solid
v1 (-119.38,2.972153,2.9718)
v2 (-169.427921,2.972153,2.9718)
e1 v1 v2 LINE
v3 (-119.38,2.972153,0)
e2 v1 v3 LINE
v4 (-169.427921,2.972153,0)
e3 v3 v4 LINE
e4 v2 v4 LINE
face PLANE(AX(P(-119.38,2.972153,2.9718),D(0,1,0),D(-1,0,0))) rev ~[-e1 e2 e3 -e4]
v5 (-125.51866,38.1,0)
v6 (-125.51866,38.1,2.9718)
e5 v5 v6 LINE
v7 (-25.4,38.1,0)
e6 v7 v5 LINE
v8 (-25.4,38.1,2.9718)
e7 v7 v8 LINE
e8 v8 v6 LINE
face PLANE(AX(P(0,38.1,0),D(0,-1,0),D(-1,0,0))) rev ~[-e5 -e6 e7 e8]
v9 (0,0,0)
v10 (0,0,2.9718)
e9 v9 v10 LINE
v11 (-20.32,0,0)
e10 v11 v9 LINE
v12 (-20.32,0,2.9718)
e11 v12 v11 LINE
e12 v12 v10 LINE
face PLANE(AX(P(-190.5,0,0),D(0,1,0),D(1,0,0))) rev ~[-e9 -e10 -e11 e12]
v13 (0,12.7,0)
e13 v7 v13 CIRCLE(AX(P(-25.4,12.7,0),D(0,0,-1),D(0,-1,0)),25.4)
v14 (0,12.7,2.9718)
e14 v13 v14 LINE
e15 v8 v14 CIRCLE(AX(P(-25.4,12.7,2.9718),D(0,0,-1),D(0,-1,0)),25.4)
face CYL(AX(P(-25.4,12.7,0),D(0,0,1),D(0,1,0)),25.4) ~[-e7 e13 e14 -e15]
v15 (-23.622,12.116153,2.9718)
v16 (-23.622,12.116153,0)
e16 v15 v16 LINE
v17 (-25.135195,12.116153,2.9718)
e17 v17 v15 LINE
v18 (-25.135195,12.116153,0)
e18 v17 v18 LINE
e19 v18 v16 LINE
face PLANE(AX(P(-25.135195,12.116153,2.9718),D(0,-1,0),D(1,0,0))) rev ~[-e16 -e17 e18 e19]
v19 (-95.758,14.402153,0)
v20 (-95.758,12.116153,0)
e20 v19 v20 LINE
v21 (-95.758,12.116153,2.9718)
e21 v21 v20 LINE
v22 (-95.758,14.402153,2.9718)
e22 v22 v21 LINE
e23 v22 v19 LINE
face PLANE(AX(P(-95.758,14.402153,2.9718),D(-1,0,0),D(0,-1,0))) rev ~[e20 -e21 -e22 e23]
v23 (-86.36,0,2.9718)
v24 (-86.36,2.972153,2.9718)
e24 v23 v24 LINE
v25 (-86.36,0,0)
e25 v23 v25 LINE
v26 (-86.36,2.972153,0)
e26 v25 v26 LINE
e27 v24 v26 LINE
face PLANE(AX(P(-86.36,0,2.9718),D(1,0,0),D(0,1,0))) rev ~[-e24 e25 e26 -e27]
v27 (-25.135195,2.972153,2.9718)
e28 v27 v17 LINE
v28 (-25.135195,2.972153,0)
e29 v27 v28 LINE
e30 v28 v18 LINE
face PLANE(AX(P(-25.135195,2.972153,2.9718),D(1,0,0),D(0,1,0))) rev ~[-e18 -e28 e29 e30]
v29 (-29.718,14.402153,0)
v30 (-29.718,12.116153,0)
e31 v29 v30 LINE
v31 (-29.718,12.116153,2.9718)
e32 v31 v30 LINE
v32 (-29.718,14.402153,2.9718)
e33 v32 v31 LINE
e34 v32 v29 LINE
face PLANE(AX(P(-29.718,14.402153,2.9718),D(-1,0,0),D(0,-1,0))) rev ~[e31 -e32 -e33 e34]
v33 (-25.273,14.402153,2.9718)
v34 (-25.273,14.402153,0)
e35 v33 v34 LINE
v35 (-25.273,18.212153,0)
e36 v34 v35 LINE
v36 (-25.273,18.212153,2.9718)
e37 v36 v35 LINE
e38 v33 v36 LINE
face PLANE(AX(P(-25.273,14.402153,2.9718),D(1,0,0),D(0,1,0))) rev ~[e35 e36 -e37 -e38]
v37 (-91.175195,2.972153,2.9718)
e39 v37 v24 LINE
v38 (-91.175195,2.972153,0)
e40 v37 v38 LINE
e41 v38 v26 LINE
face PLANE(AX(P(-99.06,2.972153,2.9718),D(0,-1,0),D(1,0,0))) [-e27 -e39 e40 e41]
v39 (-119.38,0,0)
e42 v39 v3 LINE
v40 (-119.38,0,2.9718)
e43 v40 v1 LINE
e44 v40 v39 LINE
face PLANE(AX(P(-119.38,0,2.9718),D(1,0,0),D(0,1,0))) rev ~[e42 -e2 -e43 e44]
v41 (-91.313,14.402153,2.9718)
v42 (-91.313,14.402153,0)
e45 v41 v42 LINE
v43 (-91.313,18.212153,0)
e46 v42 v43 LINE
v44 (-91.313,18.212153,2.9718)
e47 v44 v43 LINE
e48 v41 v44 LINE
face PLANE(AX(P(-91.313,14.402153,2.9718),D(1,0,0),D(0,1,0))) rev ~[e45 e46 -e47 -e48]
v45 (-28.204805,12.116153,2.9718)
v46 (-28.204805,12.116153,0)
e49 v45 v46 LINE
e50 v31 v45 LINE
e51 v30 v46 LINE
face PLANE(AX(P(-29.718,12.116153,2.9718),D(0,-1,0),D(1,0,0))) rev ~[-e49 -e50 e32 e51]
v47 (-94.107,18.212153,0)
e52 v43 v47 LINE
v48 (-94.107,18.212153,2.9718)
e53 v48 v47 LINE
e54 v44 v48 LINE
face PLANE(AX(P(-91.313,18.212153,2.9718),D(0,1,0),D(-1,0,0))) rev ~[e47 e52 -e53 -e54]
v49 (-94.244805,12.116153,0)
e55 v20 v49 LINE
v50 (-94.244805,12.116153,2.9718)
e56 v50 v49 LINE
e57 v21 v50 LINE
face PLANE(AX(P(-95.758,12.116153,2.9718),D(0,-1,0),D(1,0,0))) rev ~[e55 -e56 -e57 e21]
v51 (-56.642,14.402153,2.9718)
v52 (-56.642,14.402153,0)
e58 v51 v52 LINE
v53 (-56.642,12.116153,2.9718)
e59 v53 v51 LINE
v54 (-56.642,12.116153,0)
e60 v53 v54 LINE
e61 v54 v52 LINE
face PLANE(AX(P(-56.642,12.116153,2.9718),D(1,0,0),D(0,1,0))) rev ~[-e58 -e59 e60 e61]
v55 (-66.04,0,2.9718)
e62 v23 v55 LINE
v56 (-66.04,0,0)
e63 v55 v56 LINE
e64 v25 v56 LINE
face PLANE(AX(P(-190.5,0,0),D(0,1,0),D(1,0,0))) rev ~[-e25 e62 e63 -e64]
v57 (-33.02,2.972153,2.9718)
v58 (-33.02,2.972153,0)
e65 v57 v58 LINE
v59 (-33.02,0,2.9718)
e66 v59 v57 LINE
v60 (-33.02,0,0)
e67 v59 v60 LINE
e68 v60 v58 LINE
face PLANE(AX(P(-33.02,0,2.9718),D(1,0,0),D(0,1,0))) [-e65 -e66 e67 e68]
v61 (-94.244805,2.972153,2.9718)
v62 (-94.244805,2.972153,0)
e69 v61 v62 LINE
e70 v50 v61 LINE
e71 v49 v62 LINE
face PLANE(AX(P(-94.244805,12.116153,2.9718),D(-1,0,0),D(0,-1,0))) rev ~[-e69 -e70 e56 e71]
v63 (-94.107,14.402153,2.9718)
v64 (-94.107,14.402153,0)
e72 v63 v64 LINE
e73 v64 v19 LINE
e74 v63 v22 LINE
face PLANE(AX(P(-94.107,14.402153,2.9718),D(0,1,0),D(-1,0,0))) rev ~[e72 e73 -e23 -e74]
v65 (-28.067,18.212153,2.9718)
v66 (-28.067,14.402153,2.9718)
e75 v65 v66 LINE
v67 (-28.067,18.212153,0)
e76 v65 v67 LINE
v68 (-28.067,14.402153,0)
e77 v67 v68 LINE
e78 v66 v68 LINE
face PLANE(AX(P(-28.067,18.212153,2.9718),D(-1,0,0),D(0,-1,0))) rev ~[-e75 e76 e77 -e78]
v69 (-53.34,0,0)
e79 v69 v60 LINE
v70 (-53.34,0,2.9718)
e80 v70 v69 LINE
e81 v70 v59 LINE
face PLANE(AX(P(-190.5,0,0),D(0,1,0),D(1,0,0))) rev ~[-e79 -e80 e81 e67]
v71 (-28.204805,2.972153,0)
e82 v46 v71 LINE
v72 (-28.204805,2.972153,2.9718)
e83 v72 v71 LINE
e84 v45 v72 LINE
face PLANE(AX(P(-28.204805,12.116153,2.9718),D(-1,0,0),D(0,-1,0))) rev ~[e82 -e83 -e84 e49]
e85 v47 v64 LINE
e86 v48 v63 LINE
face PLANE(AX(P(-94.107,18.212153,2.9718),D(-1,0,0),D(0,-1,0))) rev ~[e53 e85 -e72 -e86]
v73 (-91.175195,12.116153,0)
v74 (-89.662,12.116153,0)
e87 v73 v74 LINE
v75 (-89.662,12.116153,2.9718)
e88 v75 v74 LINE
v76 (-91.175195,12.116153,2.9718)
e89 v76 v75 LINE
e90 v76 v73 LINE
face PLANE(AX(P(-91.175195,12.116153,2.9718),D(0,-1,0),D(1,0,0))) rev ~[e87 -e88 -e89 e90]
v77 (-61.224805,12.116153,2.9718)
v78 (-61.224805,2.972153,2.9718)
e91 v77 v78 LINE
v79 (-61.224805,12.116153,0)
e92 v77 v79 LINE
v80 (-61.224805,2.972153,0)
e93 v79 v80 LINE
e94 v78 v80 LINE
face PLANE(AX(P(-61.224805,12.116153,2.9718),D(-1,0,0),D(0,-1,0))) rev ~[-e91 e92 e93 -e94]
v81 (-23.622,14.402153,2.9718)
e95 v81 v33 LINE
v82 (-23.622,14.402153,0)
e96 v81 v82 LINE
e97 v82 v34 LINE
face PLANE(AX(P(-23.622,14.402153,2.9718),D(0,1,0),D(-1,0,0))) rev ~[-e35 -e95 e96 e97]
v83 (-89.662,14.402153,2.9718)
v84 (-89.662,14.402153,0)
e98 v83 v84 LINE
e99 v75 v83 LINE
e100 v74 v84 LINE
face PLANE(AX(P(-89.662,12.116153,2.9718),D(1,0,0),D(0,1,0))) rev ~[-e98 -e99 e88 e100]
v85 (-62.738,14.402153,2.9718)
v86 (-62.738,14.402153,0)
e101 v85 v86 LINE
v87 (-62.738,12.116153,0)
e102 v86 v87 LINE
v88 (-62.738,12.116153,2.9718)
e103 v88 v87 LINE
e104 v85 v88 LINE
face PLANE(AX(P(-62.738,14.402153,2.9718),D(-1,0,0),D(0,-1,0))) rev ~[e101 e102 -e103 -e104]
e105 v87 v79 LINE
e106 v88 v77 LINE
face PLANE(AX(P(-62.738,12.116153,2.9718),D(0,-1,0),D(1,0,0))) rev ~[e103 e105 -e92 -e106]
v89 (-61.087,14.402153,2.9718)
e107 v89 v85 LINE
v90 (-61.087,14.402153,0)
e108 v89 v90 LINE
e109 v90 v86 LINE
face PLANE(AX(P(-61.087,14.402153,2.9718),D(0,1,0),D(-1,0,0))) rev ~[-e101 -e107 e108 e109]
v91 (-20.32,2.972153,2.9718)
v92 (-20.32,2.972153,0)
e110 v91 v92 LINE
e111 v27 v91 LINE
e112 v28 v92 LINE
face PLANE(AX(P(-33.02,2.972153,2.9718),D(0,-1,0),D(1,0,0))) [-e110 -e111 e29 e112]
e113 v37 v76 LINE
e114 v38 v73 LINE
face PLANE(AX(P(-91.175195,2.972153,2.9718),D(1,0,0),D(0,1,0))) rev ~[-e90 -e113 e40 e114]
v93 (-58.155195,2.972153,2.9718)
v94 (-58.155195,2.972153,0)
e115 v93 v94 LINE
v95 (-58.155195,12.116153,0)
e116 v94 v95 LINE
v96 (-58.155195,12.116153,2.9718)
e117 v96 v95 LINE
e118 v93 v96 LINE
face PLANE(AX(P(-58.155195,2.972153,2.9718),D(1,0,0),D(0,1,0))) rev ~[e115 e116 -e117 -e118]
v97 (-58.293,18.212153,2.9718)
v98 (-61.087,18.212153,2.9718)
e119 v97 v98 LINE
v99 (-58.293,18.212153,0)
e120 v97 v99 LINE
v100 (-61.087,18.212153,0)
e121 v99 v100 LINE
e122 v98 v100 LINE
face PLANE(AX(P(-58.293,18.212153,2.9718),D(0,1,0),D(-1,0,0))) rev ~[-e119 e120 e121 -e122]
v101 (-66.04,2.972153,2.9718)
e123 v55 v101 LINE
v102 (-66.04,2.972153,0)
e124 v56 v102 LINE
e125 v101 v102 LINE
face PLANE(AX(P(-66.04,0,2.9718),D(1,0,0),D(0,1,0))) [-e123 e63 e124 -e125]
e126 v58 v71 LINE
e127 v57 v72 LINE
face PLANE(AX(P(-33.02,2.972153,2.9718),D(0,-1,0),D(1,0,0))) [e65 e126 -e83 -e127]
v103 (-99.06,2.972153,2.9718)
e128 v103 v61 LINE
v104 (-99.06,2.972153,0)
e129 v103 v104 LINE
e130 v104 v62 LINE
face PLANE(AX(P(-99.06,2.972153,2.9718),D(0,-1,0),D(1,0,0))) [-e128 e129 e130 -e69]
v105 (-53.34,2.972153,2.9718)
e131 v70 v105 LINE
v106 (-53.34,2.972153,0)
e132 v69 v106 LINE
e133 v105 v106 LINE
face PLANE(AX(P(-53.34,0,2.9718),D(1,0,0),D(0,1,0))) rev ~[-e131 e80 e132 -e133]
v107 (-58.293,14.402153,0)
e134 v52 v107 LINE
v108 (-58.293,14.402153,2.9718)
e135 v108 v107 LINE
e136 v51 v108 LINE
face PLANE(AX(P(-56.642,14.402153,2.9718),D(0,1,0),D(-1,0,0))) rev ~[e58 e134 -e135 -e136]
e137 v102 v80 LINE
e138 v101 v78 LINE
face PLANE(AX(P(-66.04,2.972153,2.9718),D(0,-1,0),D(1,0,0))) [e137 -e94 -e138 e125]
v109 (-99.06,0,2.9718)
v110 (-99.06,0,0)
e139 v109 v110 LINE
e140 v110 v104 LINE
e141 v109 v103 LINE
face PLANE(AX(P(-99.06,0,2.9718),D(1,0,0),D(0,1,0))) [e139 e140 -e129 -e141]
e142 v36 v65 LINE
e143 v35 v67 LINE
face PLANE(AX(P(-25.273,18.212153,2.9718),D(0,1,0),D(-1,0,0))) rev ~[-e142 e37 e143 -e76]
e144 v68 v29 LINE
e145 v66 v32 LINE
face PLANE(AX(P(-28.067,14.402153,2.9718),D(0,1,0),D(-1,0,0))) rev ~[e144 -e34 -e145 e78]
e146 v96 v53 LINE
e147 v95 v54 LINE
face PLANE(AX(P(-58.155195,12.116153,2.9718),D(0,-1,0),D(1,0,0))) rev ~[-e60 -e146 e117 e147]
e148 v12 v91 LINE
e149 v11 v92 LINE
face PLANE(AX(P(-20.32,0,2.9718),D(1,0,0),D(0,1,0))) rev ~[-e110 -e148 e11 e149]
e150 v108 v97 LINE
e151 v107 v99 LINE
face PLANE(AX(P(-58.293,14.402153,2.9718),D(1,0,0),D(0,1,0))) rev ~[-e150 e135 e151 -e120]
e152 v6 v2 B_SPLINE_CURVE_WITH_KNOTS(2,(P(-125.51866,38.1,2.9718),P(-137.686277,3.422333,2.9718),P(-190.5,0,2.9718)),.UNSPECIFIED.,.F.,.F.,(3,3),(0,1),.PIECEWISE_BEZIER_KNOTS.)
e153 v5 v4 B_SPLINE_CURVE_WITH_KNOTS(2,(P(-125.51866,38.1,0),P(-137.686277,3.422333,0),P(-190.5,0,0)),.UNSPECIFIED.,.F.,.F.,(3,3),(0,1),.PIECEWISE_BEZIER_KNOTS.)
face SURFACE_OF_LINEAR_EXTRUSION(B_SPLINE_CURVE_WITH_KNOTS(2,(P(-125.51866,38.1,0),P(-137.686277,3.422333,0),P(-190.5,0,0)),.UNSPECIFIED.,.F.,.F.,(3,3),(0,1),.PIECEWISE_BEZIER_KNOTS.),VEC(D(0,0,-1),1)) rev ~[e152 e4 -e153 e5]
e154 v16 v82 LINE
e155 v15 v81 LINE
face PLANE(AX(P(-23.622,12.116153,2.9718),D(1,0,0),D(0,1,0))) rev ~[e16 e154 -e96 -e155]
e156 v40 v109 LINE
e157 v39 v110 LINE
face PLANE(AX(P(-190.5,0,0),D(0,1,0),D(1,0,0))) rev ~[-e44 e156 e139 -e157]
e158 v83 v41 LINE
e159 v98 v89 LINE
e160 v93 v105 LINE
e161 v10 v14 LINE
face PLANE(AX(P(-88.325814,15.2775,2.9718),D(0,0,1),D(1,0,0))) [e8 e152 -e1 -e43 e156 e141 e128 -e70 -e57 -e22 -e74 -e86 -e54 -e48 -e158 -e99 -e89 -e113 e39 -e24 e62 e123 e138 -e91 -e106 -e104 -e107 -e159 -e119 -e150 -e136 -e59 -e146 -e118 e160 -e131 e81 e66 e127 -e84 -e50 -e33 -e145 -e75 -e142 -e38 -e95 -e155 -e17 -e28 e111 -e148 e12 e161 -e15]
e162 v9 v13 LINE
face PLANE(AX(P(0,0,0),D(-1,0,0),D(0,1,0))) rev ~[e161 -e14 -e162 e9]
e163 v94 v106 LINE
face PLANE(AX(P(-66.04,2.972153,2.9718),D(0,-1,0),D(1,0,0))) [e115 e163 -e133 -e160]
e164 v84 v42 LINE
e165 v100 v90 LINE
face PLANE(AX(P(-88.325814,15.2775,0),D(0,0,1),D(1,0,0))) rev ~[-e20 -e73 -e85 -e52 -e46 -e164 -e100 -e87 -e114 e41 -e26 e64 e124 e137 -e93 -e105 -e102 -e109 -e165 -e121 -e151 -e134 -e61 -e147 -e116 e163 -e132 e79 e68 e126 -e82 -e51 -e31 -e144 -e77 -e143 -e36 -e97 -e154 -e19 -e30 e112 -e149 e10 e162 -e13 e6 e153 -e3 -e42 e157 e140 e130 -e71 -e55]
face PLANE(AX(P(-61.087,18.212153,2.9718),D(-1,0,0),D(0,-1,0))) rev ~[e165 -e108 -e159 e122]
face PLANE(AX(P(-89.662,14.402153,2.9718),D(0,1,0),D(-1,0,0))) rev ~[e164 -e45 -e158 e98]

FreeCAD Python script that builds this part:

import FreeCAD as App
import Part
import Sketcher

V = App.Vector
Q = App.Units.Quantity


def edges_at(feature, points):
    """Names of the edges that pass closest to the given points."""
    edges = feature.Shape.Edges
    near = lambda p: min(range(len(edges)), key=lambda i: edges[i].distToShape(Part.Vertex(*p))[0])
    return sorted({f"Edge{near(p) + 1}" for p in points})


def add_polygon(sketch, points):
    """Adds a closed chain of lines whose ends are joined by coincident constraints."""
    first, n = sketch.GeometryCount, len(points)
    for a, b in zip(points, points[1:] + points[:1]):
        sketch.addGeometry(Part.LineSegment(App.Vector(*a, 0), App.Vector(*b, 0)), False)
    for i in range(n):
        sketch.addConstraint(Sketcher.Constraint("Coincident", first + i, 2, first + (i + 1) % n, 1))

doc = App.newDocument("Part")
params = doc.addObject("Spreadsheet::Sheet", "Params")
for row, (alias, value) in enumerate([
    ("pad1_length", "0.117 in"),
    ("sketch2_width", "0.5 in"),
    ("sketch2_width2", "2.8 in"),
    ("pocket1_length", "0.117 in"),
    ("sketch3_width", "0.11 in"),
    ("sketch3_height", "0.15 in"),
    ("sketch3_height2", "0.09 in"),
    ("sketch3_height3", "0.36 in"),
    ("sketch3_width2", "0.065 in"),
    ("pocket2_length", "0.117 in"),
    ("fillet_radius", "1 in"),
], start=1):
    params.set(f"A{row}", alias)
    params.set(f"B{row}", "=" + value)
    params.setAlias(f"B{row}", alias)

body = doc.addObject("PartDesign::Body", "Body")

# Sketch on XY plane
sketch1 = doc.addObject("Sketcher::SketchObject", "Sketch")
body.addObject(sketch1)
sketch1.AttachmentSupport = (doc.XY_Plane, [""])
sketch1.MapMode = "FlatFace"
sketch1.addGeometry([
    Part.LineSegment(V(-190.5, 0, 0), V(0, 0, 0)),
    Part.LineSegment(V(0, 0, 0), V(0, 38.1, 0)),
    Part.LineSegment(V(0, 38.1, 0), V(-125.51866, 38.1, 0)),
    Part.BSplineCurve([V(-125.51866, 38.1, 0), V(-137.686277, 3.422333, 0), V(-190.5, 0, 0)], [3, 3], [0, 1], False, 2, [1, 1, 1], False),
], False)
sketch1.addConstraint([
    Sketcher.Constraint("Block", 3),
    Sketcher.Constraint("Coincident", 0, 2, 1, 1),
    Sketcher.Constraint("Coincident", 1, 2, 2, 1),
    Sketcher.Constraint("Coincident", 2, 2, 3, 1),
    Sketcher.Constraint("Coincident", 3, 2, 0, 1),
    Sketcher.Constraint("Horizontal", 0),
    Sketcher.Constraint("Vertical", 1),
    Sketcher.Constraint("Horizontal", 2),
    Sketcher.Constraint("PointOnObject", 1, 2, -2),
])
pad1 = doc.addObject("PartDesign::Pad", "Pad")
body.addObject(pad1)
pad1.Profile = sketch1
pad1.setExpression("Length", "Params.pad1_length")

# Sketch on XY plane
sketch2 = doc.addObject("Sketcher::SketchObject", "Sketch001")
body.addObject(sketch2)
sketch2.AttachmentSupport = (doc.XY_Plane, [""])
sketch2.MapMode = "FlatFace"
sketch2.AttachmentOffset = App.Placement(V(0, 0, 0.117 * 25.4), App.Rotation())
add_polygon(sketch2, [(-33.02, 2.972153), (-33.02, 0), (-20.32, 0), (-20.32, 2.972153)])  # lines 0-3
add_polygon(sketch2, [(-66.04, 2.972153), (-66.04, 0), (-53.34, 0), (-53.34, 2.972153)])  # lines 4-7
add_polygon(sketch2, [(-99.06, 2.972153), (-99.06, 0), (-86.36, 0), (-86.36, 2.972153)])  # lines 8-11
sketch2.addGeometry(Part.BSplineCurve([V(-169.427921, 2.972153, 0), V(-179.000448, 0.745172, 0), V(-190.5, 0, 0)], [3, 3], [0.782262052, 1], False, 2, [1, 1, 1], False), False)  # 12
sketch2.addGeometry(Part.LineSegment(V(-190.5, 0, 0), V(-119.38, 0, 0)), False)  # 13
sketch2.addGeometry(Part.LineSegment(V(-119.38, 0, 0), V(-119.38, 2.972153, 0)), False)  # 14
sketch2.addGeometry(Part.LineSegment(V(-119.38, 2.972153, 0), V(-169.427921, 2.972153, 0)), False)  # 15
sketch2.addConstraint([
    Sketcher.Constraint("Block", 12),
    Sketcher.Constraint("Coincident", 12, 2, 13, 1),
    Sketcher.Constraint("Coincident", 13, 2, 14, 1),
    Sketcher.Constraint("Coincident", 14, 2, 15, 1),
    Sketcher.Constraint("Coincident", 15, 2, 12, 1),
    Sketcher.Constraint("Vertical", 0),
    Sketcher.Constraint("Horizontal", 1),
    Sketcher.Constraint("Vertical", 2),
    Sketcher.Constraint("Horizontal", 3),
    Sketcher.Constraint("Vertical", 4),
    Sketcher.Constraint("Horizontal", 5),
    Sketcher.Constraint("Vertical", 6),
    Sketcher.Constraint("Horizontal", 7),
    Sketcher.Constraint("Vertical", 8),
    Sketcher.Constraint("Horizontal", 9),
    Sketcher.Constraint("Vertical", 10),
    Sketcher.Constraint("Horizontal", 11),
    Sketcher.Constraint("Horizontal", 13),
    Sketcher.Constraint("Vertical", 14),
    Sketcher.Constraint("Horizontal", 15),
    Sketcher.Constraint("PointOnObject", 0, 2, -1),
    Sketcher.Constraint("PointOnObject", 4, 2, -1),
    Sketcher.Constraint("PointOnObject", 8, 2, -1),
    Sketcher.Constraint("Horizontal", 3, 2, 6, 2),
    Sketcher.Constraint("Horizontal", 7, 2, 10, 2),
    Sketcher.Constraint("Horizontal", 11, 2, 14, 2),
    Sketcher.Constraint("Equal", 3, 5),
    Sketcher.Constraint("Equal", 7, 9),
    Sketcher.Constraint("DistanceX", 1, 1, 1, 2, Q("0.5 in")),
    Sketcher.Constraint("DistanceX", 13, 1, 13, 2, Q("2.8 in")),
    Sketcher.Constraint("DistanceX", 0, 2, -1, 1, Q("1.3 in")),
    Sketcher.Constraint("DistanceX", 4, 2, -1, 1, Q("2.6 in")),
    Sketcher.Constraint("DistanceX", 8, 2, -1, 1, Q("3.9 in")),
])
sketch2.setExpression("Constraints[40]", "Params.sketch2_width")
sketch2.setExpression("Constraints[41]", "Params.sketch2_width2")
pocket1 = doc.addObject("PartDesign::Pocket", "Pocket")
body.addObject(pocket1)
pocket1.Profile = sketch2
pocket1.setExpression("Length", "Params.pocket1_length")

# Sketch on XY plane
sketch3 = doc.addObject("Sketcher::SketchObject", "Sketch002")
body.addObject(sketch3)
sketch3.AttachmentSupport = (doc.XY_Plane, [""])
sketch3.MapMode = "FlatFace"
sketch3.AttachmentOffset = App.Placement(V(0, 0, 0.117 * 25.4), App.Rotation())
add_polygon(sketch3, [(-91.313, 14.402153), (-91.313, 18.212153), (-94.107, 18.212153), (-94.107, 14.402153), (-95.758, 14.402153), (-95.758, 12.116153), (-94.244805, 12.116153), (-94.244805, 2.972153), (-91.175195, 2.972153), (-91.175195, 12.116153), (-89.662, 12.116153), (-89.662, 14.402153)])  # lines 0-11
add_polygon(sketch3, [(-58.293, 14.402153), (-58.293, 18.212153), (-61.087, 18.212153), (-61.087, 14.402153), (-62.738, 14.402153), (-62.738, 12.116153), (-61.224805, 12.116153), (-61.224805, 2.972153), (-58.155195, 2.972153), (-58.155195, 12.116153), (-56.642, 12.116153), (-56.642, 14.402153)])  # lines 12-23
add_polygon(sketch3, [(-28.067, 18.212153), (-28.067, 14.402153), (-29.718, 14.402153), (-29.718, 12.116153), (-28.204805, 12.116153), (-28.204805, 2.972153), (-25.135195, 2.972153), (-25.135195, 12.116153), (-23.622, 12.116153), (-23.622, 14.402153), (-25.273, 14.402153), (-25.273, 18.212153)])  # lines 24-35
sketch3.addConstraint([
    Sketcher.Constraint("Vertical", 0),
    Sketcher.Constraint("Horizontal", 1),
    Sketcher.Constraint("Vertical", 2),
    Sketcher.Constraint("Horizontal", 3),
    Sketcher.Constraint("Vertical", 4),
    Sketcher.Constraint("Horizontal", 5),
    Sketcher.Constraint("Vertical", 6),
    Sketcher.Constraint("Horizontal", 7),
    Sketcher.Constraint("Vertical", 8),
    Sketcher.Constraint("Horizontal", 9),
    Sketcher.Constraint("Vertical", 10),
    Sketcher.Constraint("Horizontal", 11),
    Sketcher.Constraint("Vertical", 12),
    Sketcher.Constraint("Horizontal", 13),
    Sketcher.Constraint("Vertical", 14),
    Sketcher.Constraint("Horizontal", 15),
    Sketcher.Constraint("Vertical", 16),
    Sketcher.Constraint("Horizontal", 17),
    Sketcher.Constraint("Vertical", 18),
    Sketcher.Constraint("Horizontal", 19),
    Sketcher.Constraint("Vertical", 20),
    Sketcher.Constraint("Horizontal", 21),
    Sketcher.Constraint("Vertical", 22),
    Sketcher.Constraint("Horizontal", 23),
    Sketcher.Constraint("Vertical", 24),
    Sketcher.Constraint("Horizontal", 25),
    Sketcher.Constraint("Vertical", 26),
    Sketcher.Constraint("Horizontal", 27),
    Sketcher.Constraint("Vertical", 28),
    Sketcher.Constraint("Horizontal", 29),
    Sketcher.Constraint("Vertical", 30),
    Sketcher.Constraint("Horizontal", 31),
    Sketcher.Constraint("Vertical", 32),
    Sketcher.Constraint("Horizontal", 33),
    Sketcher.Constraint("Vertical", 34),
    Sketcher.Constraint("Horizontal", 35),
    Sketcher.Constraint("Horizontal", 5, 2, 8, 2),
    Sketcher.Constraint("Horizontal", 3, 2, 10, 2),
    Sketcher.Constraint("Horizontal", 1, 2, 12, 2),
    Sketcher.Constraint("Horizontal", 11, 2, 14, 2),
    Sketcher.Constraint("Horizontal", 9, 2, 16, 2),
    Sketcher.Constraint("Horizontal", 7, 2, 18, 2),
    Sketcher.Constraint("Horizontal", 17, 2, 20, 2),
    Sketcher.Constraint("Horizontal", 15, 2, 22, 2),
    Sketcher.Constraint("Horizontal", 23, 2, 24, 2),
    Sketcher.Constraint("Horizontal", 21, 2, 26, 2),
    Sketcher.Constraint("Horizontal", 19, 2, 28, 2),
    Sketcher.Constraint("Horizontal", 27, 2, 30, 2),
    Sketcher.Constraint("Horizontal", 25, 2, 32, 2),
    Sketcher.Constraint("Horizontal", 13, 2, 34, 2),
    Sketcher.Constraint("Equal", 5, 9),
    Sketcher.Constraint("Equal", 3, 11),
    Sketcher.Constraint("Equal", 1, 13),
    Sketcher.Constraint("Equal", 11, 15),
    Sketcher.Constraint("Equal", 9, 17),
    Sketcher.Constraint("Equal", 7, 19),
    Sketcher.Constraint("Equal", 17, 21),
    Sketcher.Constraint("Equal", 23, 25),
    Sketcher.Constraint("Equal", 21, 27),
    Sketcher.Constraint("Equal", 19, 29),
    Sketcher.Constraint("Equal", 27, 31),
    Sketcher.Constraint("Equal", 25, 33),
    Sketcher.Constraint("DistanceX", 1, 2, 1, 1, Q("0.11 in")),
    Sketcher.Constraint("DistanceY", 0, 1, 0, 2, Q("0.15 in")),
    Sketcher.Constraint("DistanceY", 4, 2, 4, 1, Q("0.09 in")),
    Sketcher.Constraint("DistanceY", 6, 2, 6, 1, Q("0.36 in")),
    Sketcher.Constraint("DistanceX", 0, 2, 12, 2, Q("1.3 in")),
    Sketcher.Constraint("DistanceX", 3, 2, 3, 1, Q("0.065 in")),
    Sketcher.Constraint("DistanceX", 3, 2, -1, 1, Q("3.77 in")),
    Sketcher.Constraint("DistanceX", 25, 2, -1, 1, Q("1.17 in")),
    Sketcher.Constraint("DistanceX", 7, 1, 7, 2, 3.06961),
    Sketcher.Constraint("DistanceY", -1, 1, 0, 2, 18.212153),
])
sketch3.setExpression("Constraints[98]", "Params.sketch3_width")
sketch3.setExpression("Constraints[99]", "Params.sketch3_height")
sketch3.setExpression("Constraints[100]", "Params.sketch3_height2")
sketch3.setExpression("Constraints[101]", "Params.sketch3_height3")
sketch3.setExpression("Constraints[103]", "Params.sketch3_width2")
pocket2 = doc.addObject("PartDesign::Pocket", "Pocket001")
body.addObject(pocket2)
pocket2.Profile = sketch3
pocket2.setExpression("Length", "Params.pocket2_length")
doc.recompute()

fillet = doc.addObject("PartDesign::Fillet", "Fillet")
body.addObject(fillet)
fillet.Base = (pocket2, edges_at(pocket2, [(0, 38.1, 1.486)]))
fillet.setExpression("Radius", "Params.fillet_radius")

doc.recompute()
